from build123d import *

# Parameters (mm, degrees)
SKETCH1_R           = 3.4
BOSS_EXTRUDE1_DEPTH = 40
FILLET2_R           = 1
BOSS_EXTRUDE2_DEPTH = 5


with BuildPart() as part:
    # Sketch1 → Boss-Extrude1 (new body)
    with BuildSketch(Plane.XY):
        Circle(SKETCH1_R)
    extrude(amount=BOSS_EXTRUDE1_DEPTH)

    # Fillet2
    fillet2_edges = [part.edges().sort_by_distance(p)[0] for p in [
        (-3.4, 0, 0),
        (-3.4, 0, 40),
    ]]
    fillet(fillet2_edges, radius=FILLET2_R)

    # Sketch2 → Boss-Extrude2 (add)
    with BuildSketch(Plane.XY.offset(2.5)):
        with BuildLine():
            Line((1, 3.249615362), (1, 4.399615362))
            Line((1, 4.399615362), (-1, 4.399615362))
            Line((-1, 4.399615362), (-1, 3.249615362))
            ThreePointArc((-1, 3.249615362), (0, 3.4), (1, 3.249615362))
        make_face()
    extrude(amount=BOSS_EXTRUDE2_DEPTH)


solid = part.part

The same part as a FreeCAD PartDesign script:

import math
import FreeCAD as App
import Part
import Sketcher
from FreeCAD import Vector


def edges_at(feature, points):
    """Names of the edges that pass closest to the given points."""
    edges = feature.Shape.Edges
    near = lambda p: min(range(len(edges)), key=lambda i: edges[i].distToShape(Part.Vertex(*p))[0])
    return sorted({f"Edge{near(p) + 1}" for p in points})

doc = App.newDocument("Part")
params = doc.addObject("Spreadsheet::Sheet", "Params")
for row, (alias, value) in enumerate([
    ("sketch1_diameter", "6.8 mm"),
    ("pad1_length", "40 mm"),
    ("fillet_radius", "1 mm"),
    ("sketch2_radius", "3.4 mm"),
    ("sketch2_width", "2 mm"),
    ("sketch2_height", "1.15 mm"),
    ("pad2_length", "5 mm"),
], start=1):
    params.set(f"A{row}", alias)
    params.set(f"B{row}", "=" + value)
    params.setAlias(f"B{row}", alias)

body = doc.addObject("PartDesign::Body", "Body")

# Sketch on XY plane
sketch1 = body.newObject("Sketcher::SketchObject", "Sketch")
sketch1.AttachmentSupport = (doc.getObject("XY_Plane"), [""])
sketch1.MapMode = "FlatFace"
sketch1.addGeometry(Part.Circle(Vector(0, 0, 0), Vector(0, 0, 1), 3.4), False)
sketch1.addConstraint(Sketcher.Constraint("Coincident", 0, 3, -1, 1))
sketch1.addConstraint(Sketcher.Constraint("Diameter", 0, 6.8))
sketch1.setExpression("Constraints[1]", "Params.sketch1_diameter")
pad1 = body.newObject("PartDesign::Pad", "Pad")
pad1.Profile = sketch1
pad1.setExpression("Length", "Params.pad1_length")
doc.recompute()

fillet = body.newObject("PartDesign::Fillet", "Fillet")
fillet.Base = (pad1, edges_at(pad1, [(-3.4, 0, 0), (-3.4, 0, 40)]))
fillet.setExpression("Radius", "Params.fillet_radius")

# Sketch on XY plane
sketch2 = body.newObject("Sketcher::SketchObject", "Sketch001")
sketch2.AttachmentSupport = (doc.getObject("XY_Plane"), [""])
sketch2.MapMode = "FlatFace"
sketch2.AttachmentOffset = App.Placement(Vector(0, 0, 2.5), App.Rotation())
sketch2.addGeometry(Part.LineSegment(Vector(1, 3.2, 0), Vector(1, 4.4, 0)), False)
sketch2.addGeometry(Part.LineSegment(Vector(1, 4.4, 0), Vector(-1, 4.4, 0)), False)
sketch2.addGeometry(Part.LineSegment(Vector(-1, 4.4, 0), Vector(-1, 3.2, 0)), False)
sketch2.addGeometry(Part.ArcOfCircle(Part.Circle(Vector(0, 0, 0), Vector(0, 0, 1), 3.4), math.radians(73), math.radians(107)), False)
sketch2.addConstraint(Sketcher.Constraint("Coincident", 0, 2, 1, 1))
sketch2.addConstraint(Sketcher.Constraint("Coincident", 1, 2, 2, 1))
sketch2.addConstraint(Sketcher.Constraint("Coincident", 2, 2, 3, 2))
sketch2.addConstraint(Sketcher.Constraint("Coincident", 3, 1, 0, 1))
sketch2.addConstraint(Sketcher.Constraint("Vertical", 0))
sketch2.addConstraint(Sketcher.Constraint("Horizontal", 1))
sketch2.addConstraint(Sketcher.Constraint("Vertical", 2))
sketch2.addConstraint(Sketcher.Constraint("Coincident", 3, 3, -1, 1))
sketch2.addConstraint(Sketcher.Constraint("Horizontal", 2, 2, 3, 1))
sketch2.addConstraint(Sketcher.Constraint("Radius", 3, 3.4))
sketch2.addConstraint(Sketcher.Constraint("DistanceX", 1, 2, 1, 1, 2.0))
sketch2.addConstraint(Sketcher.Constraint("DistanceY", 0, 1, 0, 2, 1.15))
sketch2.setExpression("Constraints[9]", "Params.sketch2_radius")
sketch2.setExpression("Constraints[10]", "Params.sketch2_width")
sketch2.setExpression("Constraints[11]", "Params.sketch2_height")
pad2 = body.newObject("PartDesign::Pad", "Pad001")
pad2.Profile = sketch2
pad2.setExpression("Length", "Params.pad2_length")

doc.recompute()
